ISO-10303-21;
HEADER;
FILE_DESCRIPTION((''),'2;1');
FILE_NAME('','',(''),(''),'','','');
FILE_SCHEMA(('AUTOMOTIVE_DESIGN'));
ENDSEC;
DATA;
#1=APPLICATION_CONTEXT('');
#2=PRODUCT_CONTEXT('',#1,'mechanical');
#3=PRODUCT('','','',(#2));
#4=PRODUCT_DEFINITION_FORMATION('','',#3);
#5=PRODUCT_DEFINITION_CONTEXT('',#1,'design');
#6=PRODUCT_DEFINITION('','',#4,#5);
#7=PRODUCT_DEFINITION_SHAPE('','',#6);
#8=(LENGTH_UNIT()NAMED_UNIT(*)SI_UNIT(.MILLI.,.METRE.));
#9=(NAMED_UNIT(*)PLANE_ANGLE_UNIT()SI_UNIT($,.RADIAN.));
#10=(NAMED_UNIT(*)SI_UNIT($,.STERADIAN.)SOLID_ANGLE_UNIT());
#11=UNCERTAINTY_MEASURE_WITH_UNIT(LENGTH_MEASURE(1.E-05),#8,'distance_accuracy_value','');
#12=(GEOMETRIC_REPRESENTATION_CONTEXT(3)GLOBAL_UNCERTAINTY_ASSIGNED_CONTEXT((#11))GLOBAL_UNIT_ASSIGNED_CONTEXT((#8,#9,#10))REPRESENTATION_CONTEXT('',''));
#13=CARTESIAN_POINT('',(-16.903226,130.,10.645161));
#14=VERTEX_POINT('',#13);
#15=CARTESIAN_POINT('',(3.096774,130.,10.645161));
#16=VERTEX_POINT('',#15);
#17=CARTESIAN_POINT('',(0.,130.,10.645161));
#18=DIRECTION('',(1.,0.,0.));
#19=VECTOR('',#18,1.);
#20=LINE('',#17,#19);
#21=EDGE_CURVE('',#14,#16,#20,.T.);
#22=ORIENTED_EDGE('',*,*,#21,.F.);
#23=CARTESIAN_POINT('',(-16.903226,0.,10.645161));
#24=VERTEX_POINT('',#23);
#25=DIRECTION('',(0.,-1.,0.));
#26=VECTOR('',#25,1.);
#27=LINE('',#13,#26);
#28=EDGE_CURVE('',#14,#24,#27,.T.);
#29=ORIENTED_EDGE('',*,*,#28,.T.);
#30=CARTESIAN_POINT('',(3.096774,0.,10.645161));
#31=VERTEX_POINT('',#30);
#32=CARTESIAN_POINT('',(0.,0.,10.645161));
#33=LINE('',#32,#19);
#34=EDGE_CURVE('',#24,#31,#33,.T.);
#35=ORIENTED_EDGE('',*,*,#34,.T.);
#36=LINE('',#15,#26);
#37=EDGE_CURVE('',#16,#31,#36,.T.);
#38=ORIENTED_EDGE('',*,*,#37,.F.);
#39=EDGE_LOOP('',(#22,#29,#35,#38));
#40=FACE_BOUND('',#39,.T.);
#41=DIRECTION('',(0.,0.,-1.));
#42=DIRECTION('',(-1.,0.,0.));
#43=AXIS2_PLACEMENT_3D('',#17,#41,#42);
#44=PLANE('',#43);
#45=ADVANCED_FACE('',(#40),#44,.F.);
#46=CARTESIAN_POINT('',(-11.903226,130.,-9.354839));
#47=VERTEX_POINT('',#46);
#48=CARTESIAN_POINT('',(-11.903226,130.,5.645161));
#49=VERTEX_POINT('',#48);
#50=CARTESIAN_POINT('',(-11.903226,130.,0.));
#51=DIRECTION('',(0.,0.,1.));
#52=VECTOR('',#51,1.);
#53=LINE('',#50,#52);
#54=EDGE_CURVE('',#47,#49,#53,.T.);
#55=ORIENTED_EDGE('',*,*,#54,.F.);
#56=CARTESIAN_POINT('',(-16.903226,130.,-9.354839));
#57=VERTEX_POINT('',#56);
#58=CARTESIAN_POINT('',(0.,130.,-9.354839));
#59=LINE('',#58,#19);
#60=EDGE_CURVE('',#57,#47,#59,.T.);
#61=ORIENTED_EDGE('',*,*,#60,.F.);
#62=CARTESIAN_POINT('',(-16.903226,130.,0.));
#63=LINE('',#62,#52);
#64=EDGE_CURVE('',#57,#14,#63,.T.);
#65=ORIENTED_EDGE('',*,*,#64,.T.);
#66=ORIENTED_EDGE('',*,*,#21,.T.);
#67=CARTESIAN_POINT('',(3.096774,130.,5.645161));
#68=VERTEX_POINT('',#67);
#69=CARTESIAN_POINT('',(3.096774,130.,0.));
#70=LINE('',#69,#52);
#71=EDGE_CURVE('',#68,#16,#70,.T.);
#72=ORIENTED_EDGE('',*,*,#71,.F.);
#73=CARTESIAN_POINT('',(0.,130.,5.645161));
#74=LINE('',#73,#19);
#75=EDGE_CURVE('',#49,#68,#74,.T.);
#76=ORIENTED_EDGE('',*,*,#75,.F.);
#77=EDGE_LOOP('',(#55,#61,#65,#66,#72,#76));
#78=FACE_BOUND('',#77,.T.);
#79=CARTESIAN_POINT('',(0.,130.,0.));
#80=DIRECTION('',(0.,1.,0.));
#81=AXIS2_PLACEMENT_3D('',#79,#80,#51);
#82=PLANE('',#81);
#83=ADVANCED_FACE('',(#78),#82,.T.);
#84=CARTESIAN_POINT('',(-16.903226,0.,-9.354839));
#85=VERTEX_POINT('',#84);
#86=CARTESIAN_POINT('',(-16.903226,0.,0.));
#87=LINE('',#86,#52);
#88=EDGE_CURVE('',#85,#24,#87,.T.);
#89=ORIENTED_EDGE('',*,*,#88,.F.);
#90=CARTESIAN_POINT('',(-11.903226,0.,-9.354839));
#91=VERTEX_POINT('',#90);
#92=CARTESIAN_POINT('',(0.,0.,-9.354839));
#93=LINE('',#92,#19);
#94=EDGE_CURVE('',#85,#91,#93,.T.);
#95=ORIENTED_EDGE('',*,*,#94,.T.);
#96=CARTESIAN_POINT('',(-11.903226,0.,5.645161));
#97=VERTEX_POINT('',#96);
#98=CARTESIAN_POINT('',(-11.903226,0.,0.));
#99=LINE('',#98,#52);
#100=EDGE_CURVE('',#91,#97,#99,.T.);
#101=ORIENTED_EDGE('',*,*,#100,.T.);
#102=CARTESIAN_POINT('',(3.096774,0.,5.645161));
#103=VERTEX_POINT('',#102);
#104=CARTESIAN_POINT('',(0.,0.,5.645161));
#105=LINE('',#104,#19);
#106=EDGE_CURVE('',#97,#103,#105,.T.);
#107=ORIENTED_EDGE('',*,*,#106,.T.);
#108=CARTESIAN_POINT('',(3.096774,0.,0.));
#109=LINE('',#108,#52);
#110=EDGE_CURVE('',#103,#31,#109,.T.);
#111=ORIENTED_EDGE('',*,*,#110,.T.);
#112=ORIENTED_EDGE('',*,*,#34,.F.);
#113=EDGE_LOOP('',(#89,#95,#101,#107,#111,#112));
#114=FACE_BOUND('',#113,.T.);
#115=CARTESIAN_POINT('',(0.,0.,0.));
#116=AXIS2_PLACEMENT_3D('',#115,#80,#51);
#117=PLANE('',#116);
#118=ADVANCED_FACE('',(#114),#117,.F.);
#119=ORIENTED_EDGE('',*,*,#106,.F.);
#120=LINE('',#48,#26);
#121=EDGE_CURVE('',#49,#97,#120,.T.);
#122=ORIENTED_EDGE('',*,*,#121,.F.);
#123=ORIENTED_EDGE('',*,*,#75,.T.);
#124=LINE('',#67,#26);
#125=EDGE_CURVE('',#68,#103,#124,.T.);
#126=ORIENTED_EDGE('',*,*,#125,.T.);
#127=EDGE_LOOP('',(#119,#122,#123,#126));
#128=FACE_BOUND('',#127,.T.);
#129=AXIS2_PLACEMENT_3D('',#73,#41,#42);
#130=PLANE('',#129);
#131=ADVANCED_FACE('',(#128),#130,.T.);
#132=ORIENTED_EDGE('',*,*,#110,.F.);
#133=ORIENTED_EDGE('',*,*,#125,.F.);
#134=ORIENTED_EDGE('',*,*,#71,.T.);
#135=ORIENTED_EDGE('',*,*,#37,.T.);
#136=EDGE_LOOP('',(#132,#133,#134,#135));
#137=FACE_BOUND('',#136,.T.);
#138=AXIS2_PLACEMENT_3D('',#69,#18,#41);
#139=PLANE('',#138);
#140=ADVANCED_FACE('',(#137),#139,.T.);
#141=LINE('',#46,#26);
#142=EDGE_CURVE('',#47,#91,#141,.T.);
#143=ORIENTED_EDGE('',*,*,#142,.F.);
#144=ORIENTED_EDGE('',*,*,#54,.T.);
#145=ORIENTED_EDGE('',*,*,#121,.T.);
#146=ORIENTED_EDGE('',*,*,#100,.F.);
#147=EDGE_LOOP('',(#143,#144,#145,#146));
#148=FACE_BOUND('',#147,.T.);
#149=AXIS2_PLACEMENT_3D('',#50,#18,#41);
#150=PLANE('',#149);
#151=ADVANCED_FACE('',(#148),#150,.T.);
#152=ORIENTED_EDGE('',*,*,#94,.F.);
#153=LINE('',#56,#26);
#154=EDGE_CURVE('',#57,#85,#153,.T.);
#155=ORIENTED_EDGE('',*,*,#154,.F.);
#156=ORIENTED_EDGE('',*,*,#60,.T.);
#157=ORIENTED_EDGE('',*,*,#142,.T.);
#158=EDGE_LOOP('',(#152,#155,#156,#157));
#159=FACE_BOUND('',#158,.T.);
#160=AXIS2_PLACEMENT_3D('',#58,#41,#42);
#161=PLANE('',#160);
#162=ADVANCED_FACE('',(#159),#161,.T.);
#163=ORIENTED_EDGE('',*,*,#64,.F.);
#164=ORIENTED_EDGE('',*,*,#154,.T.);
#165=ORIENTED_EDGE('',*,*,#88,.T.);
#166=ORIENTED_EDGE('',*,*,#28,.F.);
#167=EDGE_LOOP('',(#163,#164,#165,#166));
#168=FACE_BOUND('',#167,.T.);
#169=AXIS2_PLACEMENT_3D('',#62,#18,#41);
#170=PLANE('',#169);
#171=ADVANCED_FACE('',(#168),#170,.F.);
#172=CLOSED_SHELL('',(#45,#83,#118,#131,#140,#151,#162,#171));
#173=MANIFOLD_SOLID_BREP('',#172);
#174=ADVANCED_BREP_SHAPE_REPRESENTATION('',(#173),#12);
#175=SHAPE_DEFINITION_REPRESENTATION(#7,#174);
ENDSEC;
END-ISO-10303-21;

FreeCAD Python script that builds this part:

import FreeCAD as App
import Part
import Sketcher
Q = App.Units.Quantity

doc = App.newDocument("Part")
params = doc.addObject("Spreadsheet::Sheet", "Params")
for row, (alias, value) in enumerate([
    ("sketch1_width", "5 mm"),
    ("sketch1_width2", "20 mm"),
    ("pad1_length", "130 mm"),
], start=1):
    params.set(f"A{row}", alias)
    params.set(f"B{row}", "=" + value)
    params.setAlias(f"B{row}", alias)

body = doc.addObject("PartDesign::Body", "Body")

# Sketch on XZ plane
sketch1 = doc.addObject("Sketcher::SketchObject", "Sketch")
body.addObject(sketch1)
sketch1.AttachmentSupport = (doc.XZ_Plane, [""])
sketch1.MapMode = "FlatFace"
sketch1.addGeometry([
    Part.LineSegment(App.Vector(-11.9, -9.4, 0), App.Vector(-16.9, -9.4, 0)),  # 0
    Part.LineSegment(App.Vector(-16.9, -9.4, 0), App.Vector(-16.9, 10.6, 0)),  # 1
    Part.LineSegment(App.Vector(-16.9, 10.6, 0), App.Vector(3.1, 10.6, 0)),  # 2
    Part.LineSegment(App.Vector(3.1, 10.6, 0), App.Vector(3.1, 5.6, 0)),  # 3
    Part.LineSegment(App.Vector(3.1, 5.6, 0), App.Vector(-11.9, 5.6, 0)),  # 4
    Part.LineSegment(App.Vector(-11.9, 5.6, 0), App.Vector(-11.9, -9.4, 0)),  # 5
], False)
sketch1.addConstraint([
    Sketcher.Constraint("Coincident", 0, 2, 1, 1),
    Sketcher.Constraint("Coincident", 1, 2, 2, 1),
    Sketcher.Constraint("Coincident", 2, 2, 3, 1),
    Sketcher.Constraint("Coincident", 3, 2, 4, 1),
    Sketcher.Constraint("Coincident", 4, 2, 5, 1),
    Sketcher.Constraint("Coincident", 5, 2, 0, 1),
    Sketcher.Constraint("Horizontal", 0),
    Sketcher.Constraint("Vertical", 1),
    Sketcher.Constraint("Horizontal", 2),
    Sketcher.Constraint("Vertical", 3),
    Sketcher.Constraint("Horizontal", 4),
    Sketcher.Constraint("Vertical", 5),
    Sketcher.Constraint("Equal", 2, 1),
    Sketcher.Constraint("Equal", 0, 3),
    Sketcher.Constraint("DistanceX", 0, 2, 0, 1, Q("5 mm")),
    Sketcher.Constraint("DistanceX", 2, 1, 2, 2, Q("20 mm")),
    Sketcher.Constraint("DistanceY", 0, 2, -1, 1, Q("9.354839 mm")),
    Sketcher.Constraint("DistanceX", 0, 2, -1, 1, Q("16.903226 mm")),
])
sketch1.setExpression("Constraints[14]", "Params.sketch1_width")
sketch1.setExpression("Constraints[15]", "Params.sketch1_width2")
pad1 = doc.addObject("PartDesign::Pad", "Pad")
body.addObject(pad1)
pad1.Profile = sketch1
pad1.setExpression("Length", "Params.pad1_length")
pad1.Reversed = True

doc.recompute()
